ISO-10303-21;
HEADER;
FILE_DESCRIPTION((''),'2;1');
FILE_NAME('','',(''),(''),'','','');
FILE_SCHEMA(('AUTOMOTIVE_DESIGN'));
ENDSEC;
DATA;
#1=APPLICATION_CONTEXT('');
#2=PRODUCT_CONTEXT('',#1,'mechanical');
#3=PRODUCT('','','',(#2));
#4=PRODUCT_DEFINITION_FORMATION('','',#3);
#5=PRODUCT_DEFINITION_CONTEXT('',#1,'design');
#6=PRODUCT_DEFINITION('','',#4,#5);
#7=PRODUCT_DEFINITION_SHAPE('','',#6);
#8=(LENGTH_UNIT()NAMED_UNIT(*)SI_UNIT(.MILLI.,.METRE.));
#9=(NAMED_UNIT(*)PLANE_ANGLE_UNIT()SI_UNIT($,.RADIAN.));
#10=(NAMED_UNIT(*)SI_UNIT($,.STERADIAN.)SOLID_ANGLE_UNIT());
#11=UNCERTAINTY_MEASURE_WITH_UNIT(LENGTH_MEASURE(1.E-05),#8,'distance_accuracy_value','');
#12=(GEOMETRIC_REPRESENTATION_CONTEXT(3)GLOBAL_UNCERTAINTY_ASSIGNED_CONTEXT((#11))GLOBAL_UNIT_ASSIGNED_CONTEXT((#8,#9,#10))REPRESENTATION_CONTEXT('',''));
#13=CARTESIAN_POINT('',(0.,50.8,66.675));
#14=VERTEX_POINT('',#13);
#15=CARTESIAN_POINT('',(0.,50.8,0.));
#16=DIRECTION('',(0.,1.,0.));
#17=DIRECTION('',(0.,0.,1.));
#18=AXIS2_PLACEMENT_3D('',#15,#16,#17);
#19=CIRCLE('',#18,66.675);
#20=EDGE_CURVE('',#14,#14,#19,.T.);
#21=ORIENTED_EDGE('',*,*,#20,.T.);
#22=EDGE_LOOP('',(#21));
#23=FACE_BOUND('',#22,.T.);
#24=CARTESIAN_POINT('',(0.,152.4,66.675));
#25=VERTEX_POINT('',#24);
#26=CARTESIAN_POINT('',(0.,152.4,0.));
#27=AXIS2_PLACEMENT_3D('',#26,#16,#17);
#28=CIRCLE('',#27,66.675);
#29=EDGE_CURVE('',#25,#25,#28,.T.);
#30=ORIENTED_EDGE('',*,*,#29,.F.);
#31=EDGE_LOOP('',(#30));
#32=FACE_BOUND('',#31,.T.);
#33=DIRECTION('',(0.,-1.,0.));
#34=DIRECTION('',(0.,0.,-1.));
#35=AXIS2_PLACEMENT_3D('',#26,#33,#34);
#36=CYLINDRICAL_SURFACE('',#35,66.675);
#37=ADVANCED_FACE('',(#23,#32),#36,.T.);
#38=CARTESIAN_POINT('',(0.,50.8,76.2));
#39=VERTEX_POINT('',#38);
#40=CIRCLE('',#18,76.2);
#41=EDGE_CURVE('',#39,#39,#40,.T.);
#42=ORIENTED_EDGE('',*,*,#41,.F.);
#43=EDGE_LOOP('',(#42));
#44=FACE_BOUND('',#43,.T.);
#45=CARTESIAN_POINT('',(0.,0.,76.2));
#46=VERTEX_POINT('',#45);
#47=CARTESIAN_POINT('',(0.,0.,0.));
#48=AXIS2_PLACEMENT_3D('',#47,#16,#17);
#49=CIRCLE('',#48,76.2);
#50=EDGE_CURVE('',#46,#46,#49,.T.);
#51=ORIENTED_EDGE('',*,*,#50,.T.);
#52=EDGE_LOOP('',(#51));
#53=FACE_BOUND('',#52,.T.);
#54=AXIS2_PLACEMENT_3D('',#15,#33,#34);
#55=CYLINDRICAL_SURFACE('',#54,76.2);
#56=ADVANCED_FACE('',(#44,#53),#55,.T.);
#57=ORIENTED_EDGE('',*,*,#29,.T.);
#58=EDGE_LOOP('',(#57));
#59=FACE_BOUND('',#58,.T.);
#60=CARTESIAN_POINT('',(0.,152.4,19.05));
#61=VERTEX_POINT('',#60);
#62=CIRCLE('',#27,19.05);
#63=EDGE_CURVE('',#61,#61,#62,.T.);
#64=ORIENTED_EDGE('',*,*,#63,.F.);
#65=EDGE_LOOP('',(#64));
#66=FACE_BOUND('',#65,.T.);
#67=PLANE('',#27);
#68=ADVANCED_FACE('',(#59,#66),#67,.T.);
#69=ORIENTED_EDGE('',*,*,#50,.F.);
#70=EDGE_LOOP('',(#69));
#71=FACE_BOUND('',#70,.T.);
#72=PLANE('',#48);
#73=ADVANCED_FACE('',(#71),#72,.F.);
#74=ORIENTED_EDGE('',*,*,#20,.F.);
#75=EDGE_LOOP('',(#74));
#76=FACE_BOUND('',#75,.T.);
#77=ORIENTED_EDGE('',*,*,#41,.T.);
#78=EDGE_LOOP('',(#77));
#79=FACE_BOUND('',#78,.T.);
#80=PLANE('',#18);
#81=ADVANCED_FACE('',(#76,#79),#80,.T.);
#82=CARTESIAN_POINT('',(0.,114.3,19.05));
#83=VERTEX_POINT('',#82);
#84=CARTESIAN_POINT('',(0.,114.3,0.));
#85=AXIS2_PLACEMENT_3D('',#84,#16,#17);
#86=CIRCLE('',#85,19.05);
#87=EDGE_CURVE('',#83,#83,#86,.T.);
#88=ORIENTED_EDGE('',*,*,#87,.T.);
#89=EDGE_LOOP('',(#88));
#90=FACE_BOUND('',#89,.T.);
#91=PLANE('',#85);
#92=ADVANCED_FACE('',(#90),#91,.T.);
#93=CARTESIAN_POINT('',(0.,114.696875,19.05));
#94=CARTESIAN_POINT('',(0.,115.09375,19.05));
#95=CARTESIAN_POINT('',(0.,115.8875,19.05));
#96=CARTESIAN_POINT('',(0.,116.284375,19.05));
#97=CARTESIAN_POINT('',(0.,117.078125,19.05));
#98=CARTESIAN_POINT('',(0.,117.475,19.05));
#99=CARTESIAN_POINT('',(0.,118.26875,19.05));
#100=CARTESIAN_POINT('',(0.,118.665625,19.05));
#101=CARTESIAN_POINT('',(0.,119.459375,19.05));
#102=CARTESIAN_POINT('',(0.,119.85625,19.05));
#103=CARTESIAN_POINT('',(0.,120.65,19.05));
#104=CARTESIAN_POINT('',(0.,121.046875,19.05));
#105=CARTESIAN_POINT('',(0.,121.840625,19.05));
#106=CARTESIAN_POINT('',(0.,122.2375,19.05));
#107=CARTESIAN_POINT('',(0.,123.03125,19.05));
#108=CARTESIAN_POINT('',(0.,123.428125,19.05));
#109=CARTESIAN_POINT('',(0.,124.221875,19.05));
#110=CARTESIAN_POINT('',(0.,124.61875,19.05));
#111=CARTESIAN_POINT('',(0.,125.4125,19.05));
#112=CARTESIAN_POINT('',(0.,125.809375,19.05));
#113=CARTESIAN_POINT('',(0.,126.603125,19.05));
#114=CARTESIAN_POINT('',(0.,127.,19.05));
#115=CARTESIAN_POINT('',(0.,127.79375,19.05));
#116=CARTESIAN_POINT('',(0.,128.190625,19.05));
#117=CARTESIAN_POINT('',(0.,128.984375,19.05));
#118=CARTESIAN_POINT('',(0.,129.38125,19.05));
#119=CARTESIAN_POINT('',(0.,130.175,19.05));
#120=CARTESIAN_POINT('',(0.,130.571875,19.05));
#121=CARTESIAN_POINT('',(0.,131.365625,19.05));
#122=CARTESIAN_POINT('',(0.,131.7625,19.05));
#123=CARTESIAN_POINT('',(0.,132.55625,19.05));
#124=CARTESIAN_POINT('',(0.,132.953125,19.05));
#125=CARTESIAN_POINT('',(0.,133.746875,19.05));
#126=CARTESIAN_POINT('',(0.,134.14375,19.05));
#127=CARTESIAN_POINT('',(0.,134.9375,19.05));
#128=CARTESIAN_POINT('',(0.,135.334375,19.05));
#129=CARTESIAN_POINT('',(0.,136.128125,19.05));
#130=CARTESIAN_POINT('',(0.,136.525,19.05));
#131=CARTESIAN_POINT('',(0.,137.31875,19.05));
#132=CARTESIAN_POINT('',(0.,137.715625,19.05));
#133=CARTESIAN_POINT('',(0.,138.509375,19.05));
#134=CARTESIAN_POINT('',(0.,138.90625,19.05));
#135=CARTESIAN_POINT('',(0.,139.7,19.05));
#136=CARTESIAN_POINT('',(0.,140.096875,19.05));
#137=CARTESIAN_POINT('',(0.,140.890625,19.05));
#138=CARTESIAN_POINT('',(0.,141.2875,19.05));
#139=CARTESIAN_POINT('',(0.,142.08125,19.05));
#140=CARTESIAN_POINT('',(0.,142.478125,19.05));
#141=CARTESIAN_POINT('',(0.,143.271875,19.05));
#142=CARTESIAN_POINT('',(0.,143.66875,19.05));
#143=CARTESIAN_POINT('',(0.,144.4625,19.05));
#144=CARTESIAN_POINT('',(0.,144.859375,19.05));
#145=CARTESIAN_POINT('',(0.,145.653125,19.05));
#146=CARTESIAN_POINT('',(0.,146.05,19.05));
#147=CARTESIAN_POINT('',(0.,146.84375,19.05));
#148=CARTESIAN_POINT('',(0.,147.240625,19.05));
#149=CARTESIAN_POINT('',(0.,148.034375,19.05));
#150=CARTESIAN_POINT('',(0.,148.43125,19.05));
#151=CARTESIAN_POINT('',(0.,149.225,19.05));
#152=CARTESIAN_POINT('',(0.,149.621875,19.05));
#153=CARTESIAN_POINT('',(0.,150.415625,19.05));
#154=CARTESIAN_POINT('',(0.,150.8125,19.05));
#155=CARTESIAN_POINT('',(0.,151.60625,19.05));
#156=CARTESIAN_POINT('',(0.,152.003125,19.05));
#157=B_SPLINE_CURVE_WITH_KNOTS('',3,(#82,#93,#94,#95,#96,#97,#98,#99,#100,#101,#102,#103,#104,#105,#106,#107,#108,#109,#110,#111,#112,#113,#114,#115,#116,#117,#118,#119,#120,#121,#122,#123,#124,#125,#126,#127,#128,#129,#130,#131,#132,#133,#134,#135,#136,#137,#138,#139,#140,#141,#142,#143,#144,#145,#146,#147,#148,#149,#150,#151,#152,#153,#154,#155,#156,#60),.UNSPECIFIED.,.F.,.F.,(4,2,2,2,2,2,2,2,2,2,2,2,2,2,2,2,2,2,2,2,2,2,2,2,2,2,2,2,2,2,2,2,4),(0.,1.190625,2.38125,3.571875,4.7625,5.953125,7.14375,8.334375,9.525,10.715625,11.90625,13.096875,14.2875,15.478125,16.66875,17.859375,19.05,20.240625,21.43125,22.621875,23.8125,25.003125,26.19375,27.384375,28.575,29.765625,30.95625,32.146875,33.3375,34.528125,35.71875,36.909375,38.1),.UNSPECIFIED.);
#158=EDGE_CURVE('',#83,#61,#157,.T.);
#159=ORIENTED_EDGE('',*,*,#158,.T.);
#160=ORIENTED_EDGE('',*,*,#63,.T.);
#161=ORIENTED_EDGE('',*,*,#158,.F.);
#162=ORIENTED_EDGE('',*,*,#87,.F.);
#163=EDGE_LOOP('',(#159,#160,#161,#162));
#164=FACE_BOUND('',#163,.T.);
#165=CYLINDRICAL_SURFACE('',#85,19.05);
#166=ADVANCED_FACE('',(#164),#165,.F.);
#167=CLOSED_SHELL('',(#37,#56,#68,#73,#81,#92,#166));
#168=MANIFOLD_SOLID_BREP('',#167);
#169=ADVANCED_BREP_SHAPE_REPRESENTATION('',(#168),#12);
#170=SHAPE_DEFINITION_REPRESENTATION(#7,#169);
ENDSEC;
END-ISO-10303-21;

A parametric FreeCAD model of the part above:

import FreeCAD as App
import Part
import Sketcher
from FreeCAD import Vector
Q = App.Units.Quantity

doc = App.newDocument("Part")
body = doc.addObject("PartDesign::Body", "Body")

# Sketch on XZ plane
sketch1 = doc.addObject("Sketcher::SketchObject", "Sketch")
body.addObject(sketch1)
sketch1.AttachmentSupport = (doc.XZ_Plane, [""])
sketch1.MapMode = "FlatFace"
sketch1.addGeometry(Part.Circle(Vector(0, 0, 0), Vector(0, 0, 1), 76), False)
sketch1.addConstraint([
    Sketcher.Constraint("Coincident", 0, 3, -1, 1),
    Sketcher.Constraint("Diameter", 0, Q("6 in")),
])
pad1 = doc.addObject("PartDesign::Pad", "Pad")
body.addObject(pad1)
pad1.Profile = sketch1
pad1.Length = Q("2 in")
pad1.Reversed = True

# Sketch on XZ plane
sketch2 = doc.addObject("Sketcher::SketchObject", "Sketch001")
body.addObject(sketch2)
sketch2.AttachmentSupport = (doc.XZ_Plane, [""])
sketch2.MapMode = "FlatFace"
sketch2.AttachmentOffset = App.Placement(Vector(0, 0, -2 * 25.4), App.Rotation())
sketch2.addGeometry(Part.Circle(Vector(0, 0, 0), Vector(0, 0, 1), 67), False)
sketch2.addConstraint([
    Sketcher.Constraint("Coincident", 0, 3, -1, 1),
    Sketcher.Constraint("Diameter", 0, Q("5.25 in")),
])
pad2 = doc.addObject("PartDesign::Pad", "Pad001")
body.addObject(pad2)
pad2.Profile = sketch2
pad2.Length = Q("4 in")
pad2.Reversed = True

# Sketch on XZ plane
sketch3 = doc.addObject("Sketcher::SketchObject", "Sketch002")
body.addObject(sketch3)
sketch3.AttachmentSupport = (doc.XZ_Plane, [""])
sketch3.MapMode = "FlatFace"
sketch3.AttachmentOffset = App.Placement(Vector(0, 0, -6 * 25.4), App.Rotation())
sketch3.addGeometry(Part.Circle(Vector(0, 0, 0), Vector(0, 0, 1), 19), False)
sketch3.addConstraint([
    Sketcher.Constraint("Coincident", 0, 3, -1, 1),
    Sketcher.Constraint("Diameter", 0, Q("1.5 in")),
])
pocket1 = doc.addObject("PartDesign::Pocket", "Pocket")
body.addObject(pocket1)
pocket1.Profile = sketch3
pocket1.Length = Q("1.5 in")
pocket1.Reversed = True

doc.recompute()
